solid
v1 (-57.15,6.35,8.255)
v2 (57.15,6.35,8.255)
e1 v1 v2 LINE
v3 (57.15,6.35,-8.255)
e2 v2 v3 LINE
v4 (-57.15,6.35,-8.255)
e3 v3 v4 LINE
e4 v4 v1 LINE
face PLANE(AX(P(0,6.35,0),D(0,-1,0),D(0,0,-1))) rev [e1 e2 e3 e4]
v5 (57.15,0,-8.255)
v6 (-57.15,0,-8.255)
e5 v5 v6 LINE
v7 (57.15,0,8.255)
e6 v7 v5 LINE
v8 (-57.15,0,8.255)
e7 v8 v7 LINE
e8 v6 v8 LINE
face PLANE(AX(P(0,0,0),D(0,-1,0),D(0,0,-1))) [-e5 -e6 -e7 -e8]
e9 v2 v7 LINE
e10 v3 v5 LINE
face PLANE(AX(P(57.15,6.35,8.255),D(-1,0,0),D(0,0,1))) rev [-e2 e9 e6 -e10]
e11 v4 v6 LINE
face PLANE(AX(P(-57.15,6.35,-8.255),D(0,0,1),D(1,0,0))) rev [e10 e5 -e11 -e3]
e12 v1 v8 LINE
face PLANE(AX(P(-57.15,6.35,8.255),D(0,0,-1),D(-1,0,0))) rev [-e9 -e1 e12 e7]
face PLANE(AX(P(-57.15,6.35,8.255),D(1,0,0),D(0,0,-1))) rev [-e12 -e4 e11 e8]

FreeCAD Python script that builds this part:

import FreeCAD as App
import Part
import Sketcher

V = App.Vector
Q = App.Units.Quantity


def add_polygon(sketch, points):
    """Adds a closed chain of lines whose ends are joined by coincident constraints."""
    first, n = sketch.GeometryCount, len(points)
    for a, b in zip(points, points[1:] + points[:1]):
        sketch.addGeometry(Part.LineSegment(App.Vector(*a, 0), App.Vector(*b, 0)), False)
    for i in range(n):
        sketch.addConstraint(Sketcher.Constraint("Coincident", first + i, 2, first + (i + 1) % n, 1))

doc = App.newDocument("Part")
body = doc.addObject("PartDesign::Body", "Body")

# Sketch on XZ plane
sketch1 = body.newObject("Sketcher::SketchObject", "Sketch")
sketch1.AttachmentSupport = (doc.getObject("XZ_Plane"), [""])
sketch1.MapMode = "FlatFace"
add_polygon(sketch1, [(-57.15, -8.255), (-57.15, 8.255), (57.15, 8.255), (57.15, -8.255)])  # lines 0-3
sketch1.addConstraint([
    Sketcher.Constraint("Vertical", 0),
    Sketcher.Constraint("Horizontal", 1),
    Sketcher.Constraint("Vertical", 2),
    Sketcher.Constraint("Horizontal", 3),
    Sketcher.Constraint("Symmetric", 0, 2, 2, 2, -1, 1),
    Sketcher.Constraint("DistanceX", 1, 1, 1, 2, Q("4.5 in")),
    Sketcher.Constraint("DistanceY", 0, 1, 0, 2, Q("0.65 in")),
])
pad1 = body.newObject("PartDesign::Pad", "Pad")
pad1.Profile = sketch1
pad1.Length = Q("0.25 in")
pad1.Reversed = True

doc.recompute()
